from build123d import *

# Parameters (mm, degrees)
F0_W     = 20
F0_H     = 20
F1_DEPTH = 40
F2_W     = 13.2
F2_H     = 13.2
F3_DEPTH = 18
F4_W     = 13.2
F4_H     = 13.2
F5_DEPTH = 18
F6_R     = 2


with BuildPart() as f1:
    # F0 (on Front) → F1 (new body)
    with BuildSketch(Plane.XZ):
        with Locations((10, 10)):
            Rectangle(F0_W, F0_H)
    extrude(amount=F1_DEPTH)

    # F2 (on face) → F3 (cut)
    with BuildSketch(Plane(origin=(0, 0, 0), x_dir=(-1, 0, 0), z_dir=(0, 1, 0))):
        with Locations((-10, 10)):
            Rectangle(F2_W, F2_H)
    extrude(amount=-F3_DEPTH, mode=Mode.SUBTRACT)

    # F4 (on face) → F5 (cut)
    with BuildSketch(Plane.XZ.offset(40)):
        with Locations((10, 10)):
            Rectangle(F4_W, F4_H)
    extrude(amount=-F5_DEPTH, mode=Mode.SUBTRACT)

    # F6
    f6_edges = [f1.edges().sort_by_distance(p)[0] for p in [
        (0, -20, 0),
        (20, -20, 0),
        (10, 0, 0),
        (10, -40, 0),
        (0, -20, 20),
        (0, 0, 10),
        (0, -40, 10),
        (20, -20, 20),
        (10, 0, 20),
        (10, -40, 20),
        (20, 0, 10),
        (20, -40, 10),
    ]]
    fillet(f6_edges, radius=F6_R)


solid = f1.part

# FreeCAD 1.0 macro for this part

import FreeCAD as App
import Part
import Sketcher
Q = App.Units.Quantity


def edges_at(feature, points):
    """Names of the edges that pass closest to the given points."""
    edges = feature.Shape.Edges
    near = lambda p: min(range(len(edges)), key=lambda i: edges[i].distToShape(Part.Vertex(*p))[0])
    return sorted({f"Edge{near(p) + 1}" for p in points})


def add_polygon(sketch, points):
    """Adds a closed chain of lines whose ends are joined by coincident constraints."""
    first, n = sketch.GeometryCount, len(points)
    for a, b in zip(points, points[1:] + points[:1]):
        sketch.addGeometry(Part.LineSegment(App.Vector(*a, 0), App.Vector(*b, 0)), False)
    for i in range(n):
        sketch.addConstraint(Sketcher.Constraint("Coincident", first + i, 2, first + (i + 1) % n, 1))

doc = App.newDocument("Part")
body = doc.addObject("PartDesign::Body", "Body")

sketch1 = body.newObject("Sketcher::SketchObject", "Sketch")
sketch1.AttachmentSupport = (doc.getObject("XZ_Plane"), [""])
sketch1.MapMode = "FlatFace"
add_polygon(sketch1, [(0, 20), (0, 0), (20, 0), (20, 20)])
sketch1.addConstraint([
    Sketcher.Constraint("Vertical", 0),
    Sketcher.Constraint("Horizontal", 1),
    Sketcher.Constraint("Vertical", 2),
    Sketcher.Constraint("Horizontal", 3),
    Sketcher.Constraint("Coincident", 0, 2, -1, 1),
    Sketcher.Constraint("Equal", 3, 0),
    Sketcher.Constraint("DistanceX", 1, 1, 1, 2, Q("20 mm")),
])
pad1 = body.newObject("PartDesign::Pad", "Pad")
pad1.Profile = sketch1
pad1.Length = 40

sketch2 = body.newObject("Sketcher::SketchObject", "Sketch001")
sketch2.AttachmentSupport = (doc.getObject("XZ_Plane"), [""])
sketch2.MapMode = "FlatFace"
add_polygon(sketch2, [(17, 17), (17, 3), (3, 3), (3, 17)])
sketch2.addConstraint([
    Sketcher.Constraint("Vertical", 0),
    Sketcher.Constraint("Horizontal", 1),
    Sketcher.Constraint("Vertical", 2),
    Sketcher.Constraint("Horizontal", 3),
    Sketcher.Constraint("Equal", 3, 0),
    Sketcher.Constraint("DistanceX", 1, 2, 1, 1, Q("13.2 mm")),
    Sketcher.Constraint("DistanceX", -1, 1, 0, 2, Q("16.6 mm")),
    Sketcher.Constraint("DistanceY", -1, 1, 0, 2, Q("3.4 mm")),
])
pocket1 = body.newObject("PartDesign::Pocket", "Pocket")
pocket1.Profile = sketch2
pocket1.Length = 18
pocket1.Reversed = True

sketch3 = body.newObject("Sketcher::SketchObject", "Sketch002")
sketch3.AttachmentSupport = (doc.getObject("XZ_Plane"), [""])
sketch3.MapMode = "FlatFace"
sketch3.AttachmentOffset = App.Placement(App.Vector(0, 0, 40), App.Rotation())
add_polygon(sketch3, [(3, 17), (3, 3), (17, 3), (17, 17)])
sketch3.addConstraint([
    Sketcher.Constraint("Vertical", 0),
    Sketcher.Constraint("Horizontal", 1),
    Sketcher.Constraint("Vertical", 2),
    Sketcher.Constraint("Horizontal", 3),
    Sketcher.Constraint("Equal", 3, 0),
    Sketcher.Constraint("DistanceX", 1, 1, 1, 2, Q("13.2 mm")),
    Sketcher.Constraint("DistanceX", -1, 1, 0, 2, Q("3.4 mm")),
    Sketcher.Constraint("DistanceY", -1, 1, 0, 2, Q("3.4 mm")),
])
pocket2 = body.newObject("PartDesign::Pocket", "Pocket001")
pocket2.Profile = sketch3
pocket2.Length = 18
doc.recompute()

fillet = body.newObject("PartDesign::Fillet", "Fillet")
fillet.Base = (pocket2, edges_at(pocket2, [
    (0, -20, 0),
    (20, -20, 0),
    (10, 0, 0),
    (10, -40, 0),
    (0, -20, 20),
    (0, 0, 10),
    (0, -40, 10),
    (20, -20, 20),
    (10, 0, 20),
    (10, -40, 20),
    (20, 0, 10),
    (20, -40, 10),
]))
fillet.Radius = 2

doc.recompute()
